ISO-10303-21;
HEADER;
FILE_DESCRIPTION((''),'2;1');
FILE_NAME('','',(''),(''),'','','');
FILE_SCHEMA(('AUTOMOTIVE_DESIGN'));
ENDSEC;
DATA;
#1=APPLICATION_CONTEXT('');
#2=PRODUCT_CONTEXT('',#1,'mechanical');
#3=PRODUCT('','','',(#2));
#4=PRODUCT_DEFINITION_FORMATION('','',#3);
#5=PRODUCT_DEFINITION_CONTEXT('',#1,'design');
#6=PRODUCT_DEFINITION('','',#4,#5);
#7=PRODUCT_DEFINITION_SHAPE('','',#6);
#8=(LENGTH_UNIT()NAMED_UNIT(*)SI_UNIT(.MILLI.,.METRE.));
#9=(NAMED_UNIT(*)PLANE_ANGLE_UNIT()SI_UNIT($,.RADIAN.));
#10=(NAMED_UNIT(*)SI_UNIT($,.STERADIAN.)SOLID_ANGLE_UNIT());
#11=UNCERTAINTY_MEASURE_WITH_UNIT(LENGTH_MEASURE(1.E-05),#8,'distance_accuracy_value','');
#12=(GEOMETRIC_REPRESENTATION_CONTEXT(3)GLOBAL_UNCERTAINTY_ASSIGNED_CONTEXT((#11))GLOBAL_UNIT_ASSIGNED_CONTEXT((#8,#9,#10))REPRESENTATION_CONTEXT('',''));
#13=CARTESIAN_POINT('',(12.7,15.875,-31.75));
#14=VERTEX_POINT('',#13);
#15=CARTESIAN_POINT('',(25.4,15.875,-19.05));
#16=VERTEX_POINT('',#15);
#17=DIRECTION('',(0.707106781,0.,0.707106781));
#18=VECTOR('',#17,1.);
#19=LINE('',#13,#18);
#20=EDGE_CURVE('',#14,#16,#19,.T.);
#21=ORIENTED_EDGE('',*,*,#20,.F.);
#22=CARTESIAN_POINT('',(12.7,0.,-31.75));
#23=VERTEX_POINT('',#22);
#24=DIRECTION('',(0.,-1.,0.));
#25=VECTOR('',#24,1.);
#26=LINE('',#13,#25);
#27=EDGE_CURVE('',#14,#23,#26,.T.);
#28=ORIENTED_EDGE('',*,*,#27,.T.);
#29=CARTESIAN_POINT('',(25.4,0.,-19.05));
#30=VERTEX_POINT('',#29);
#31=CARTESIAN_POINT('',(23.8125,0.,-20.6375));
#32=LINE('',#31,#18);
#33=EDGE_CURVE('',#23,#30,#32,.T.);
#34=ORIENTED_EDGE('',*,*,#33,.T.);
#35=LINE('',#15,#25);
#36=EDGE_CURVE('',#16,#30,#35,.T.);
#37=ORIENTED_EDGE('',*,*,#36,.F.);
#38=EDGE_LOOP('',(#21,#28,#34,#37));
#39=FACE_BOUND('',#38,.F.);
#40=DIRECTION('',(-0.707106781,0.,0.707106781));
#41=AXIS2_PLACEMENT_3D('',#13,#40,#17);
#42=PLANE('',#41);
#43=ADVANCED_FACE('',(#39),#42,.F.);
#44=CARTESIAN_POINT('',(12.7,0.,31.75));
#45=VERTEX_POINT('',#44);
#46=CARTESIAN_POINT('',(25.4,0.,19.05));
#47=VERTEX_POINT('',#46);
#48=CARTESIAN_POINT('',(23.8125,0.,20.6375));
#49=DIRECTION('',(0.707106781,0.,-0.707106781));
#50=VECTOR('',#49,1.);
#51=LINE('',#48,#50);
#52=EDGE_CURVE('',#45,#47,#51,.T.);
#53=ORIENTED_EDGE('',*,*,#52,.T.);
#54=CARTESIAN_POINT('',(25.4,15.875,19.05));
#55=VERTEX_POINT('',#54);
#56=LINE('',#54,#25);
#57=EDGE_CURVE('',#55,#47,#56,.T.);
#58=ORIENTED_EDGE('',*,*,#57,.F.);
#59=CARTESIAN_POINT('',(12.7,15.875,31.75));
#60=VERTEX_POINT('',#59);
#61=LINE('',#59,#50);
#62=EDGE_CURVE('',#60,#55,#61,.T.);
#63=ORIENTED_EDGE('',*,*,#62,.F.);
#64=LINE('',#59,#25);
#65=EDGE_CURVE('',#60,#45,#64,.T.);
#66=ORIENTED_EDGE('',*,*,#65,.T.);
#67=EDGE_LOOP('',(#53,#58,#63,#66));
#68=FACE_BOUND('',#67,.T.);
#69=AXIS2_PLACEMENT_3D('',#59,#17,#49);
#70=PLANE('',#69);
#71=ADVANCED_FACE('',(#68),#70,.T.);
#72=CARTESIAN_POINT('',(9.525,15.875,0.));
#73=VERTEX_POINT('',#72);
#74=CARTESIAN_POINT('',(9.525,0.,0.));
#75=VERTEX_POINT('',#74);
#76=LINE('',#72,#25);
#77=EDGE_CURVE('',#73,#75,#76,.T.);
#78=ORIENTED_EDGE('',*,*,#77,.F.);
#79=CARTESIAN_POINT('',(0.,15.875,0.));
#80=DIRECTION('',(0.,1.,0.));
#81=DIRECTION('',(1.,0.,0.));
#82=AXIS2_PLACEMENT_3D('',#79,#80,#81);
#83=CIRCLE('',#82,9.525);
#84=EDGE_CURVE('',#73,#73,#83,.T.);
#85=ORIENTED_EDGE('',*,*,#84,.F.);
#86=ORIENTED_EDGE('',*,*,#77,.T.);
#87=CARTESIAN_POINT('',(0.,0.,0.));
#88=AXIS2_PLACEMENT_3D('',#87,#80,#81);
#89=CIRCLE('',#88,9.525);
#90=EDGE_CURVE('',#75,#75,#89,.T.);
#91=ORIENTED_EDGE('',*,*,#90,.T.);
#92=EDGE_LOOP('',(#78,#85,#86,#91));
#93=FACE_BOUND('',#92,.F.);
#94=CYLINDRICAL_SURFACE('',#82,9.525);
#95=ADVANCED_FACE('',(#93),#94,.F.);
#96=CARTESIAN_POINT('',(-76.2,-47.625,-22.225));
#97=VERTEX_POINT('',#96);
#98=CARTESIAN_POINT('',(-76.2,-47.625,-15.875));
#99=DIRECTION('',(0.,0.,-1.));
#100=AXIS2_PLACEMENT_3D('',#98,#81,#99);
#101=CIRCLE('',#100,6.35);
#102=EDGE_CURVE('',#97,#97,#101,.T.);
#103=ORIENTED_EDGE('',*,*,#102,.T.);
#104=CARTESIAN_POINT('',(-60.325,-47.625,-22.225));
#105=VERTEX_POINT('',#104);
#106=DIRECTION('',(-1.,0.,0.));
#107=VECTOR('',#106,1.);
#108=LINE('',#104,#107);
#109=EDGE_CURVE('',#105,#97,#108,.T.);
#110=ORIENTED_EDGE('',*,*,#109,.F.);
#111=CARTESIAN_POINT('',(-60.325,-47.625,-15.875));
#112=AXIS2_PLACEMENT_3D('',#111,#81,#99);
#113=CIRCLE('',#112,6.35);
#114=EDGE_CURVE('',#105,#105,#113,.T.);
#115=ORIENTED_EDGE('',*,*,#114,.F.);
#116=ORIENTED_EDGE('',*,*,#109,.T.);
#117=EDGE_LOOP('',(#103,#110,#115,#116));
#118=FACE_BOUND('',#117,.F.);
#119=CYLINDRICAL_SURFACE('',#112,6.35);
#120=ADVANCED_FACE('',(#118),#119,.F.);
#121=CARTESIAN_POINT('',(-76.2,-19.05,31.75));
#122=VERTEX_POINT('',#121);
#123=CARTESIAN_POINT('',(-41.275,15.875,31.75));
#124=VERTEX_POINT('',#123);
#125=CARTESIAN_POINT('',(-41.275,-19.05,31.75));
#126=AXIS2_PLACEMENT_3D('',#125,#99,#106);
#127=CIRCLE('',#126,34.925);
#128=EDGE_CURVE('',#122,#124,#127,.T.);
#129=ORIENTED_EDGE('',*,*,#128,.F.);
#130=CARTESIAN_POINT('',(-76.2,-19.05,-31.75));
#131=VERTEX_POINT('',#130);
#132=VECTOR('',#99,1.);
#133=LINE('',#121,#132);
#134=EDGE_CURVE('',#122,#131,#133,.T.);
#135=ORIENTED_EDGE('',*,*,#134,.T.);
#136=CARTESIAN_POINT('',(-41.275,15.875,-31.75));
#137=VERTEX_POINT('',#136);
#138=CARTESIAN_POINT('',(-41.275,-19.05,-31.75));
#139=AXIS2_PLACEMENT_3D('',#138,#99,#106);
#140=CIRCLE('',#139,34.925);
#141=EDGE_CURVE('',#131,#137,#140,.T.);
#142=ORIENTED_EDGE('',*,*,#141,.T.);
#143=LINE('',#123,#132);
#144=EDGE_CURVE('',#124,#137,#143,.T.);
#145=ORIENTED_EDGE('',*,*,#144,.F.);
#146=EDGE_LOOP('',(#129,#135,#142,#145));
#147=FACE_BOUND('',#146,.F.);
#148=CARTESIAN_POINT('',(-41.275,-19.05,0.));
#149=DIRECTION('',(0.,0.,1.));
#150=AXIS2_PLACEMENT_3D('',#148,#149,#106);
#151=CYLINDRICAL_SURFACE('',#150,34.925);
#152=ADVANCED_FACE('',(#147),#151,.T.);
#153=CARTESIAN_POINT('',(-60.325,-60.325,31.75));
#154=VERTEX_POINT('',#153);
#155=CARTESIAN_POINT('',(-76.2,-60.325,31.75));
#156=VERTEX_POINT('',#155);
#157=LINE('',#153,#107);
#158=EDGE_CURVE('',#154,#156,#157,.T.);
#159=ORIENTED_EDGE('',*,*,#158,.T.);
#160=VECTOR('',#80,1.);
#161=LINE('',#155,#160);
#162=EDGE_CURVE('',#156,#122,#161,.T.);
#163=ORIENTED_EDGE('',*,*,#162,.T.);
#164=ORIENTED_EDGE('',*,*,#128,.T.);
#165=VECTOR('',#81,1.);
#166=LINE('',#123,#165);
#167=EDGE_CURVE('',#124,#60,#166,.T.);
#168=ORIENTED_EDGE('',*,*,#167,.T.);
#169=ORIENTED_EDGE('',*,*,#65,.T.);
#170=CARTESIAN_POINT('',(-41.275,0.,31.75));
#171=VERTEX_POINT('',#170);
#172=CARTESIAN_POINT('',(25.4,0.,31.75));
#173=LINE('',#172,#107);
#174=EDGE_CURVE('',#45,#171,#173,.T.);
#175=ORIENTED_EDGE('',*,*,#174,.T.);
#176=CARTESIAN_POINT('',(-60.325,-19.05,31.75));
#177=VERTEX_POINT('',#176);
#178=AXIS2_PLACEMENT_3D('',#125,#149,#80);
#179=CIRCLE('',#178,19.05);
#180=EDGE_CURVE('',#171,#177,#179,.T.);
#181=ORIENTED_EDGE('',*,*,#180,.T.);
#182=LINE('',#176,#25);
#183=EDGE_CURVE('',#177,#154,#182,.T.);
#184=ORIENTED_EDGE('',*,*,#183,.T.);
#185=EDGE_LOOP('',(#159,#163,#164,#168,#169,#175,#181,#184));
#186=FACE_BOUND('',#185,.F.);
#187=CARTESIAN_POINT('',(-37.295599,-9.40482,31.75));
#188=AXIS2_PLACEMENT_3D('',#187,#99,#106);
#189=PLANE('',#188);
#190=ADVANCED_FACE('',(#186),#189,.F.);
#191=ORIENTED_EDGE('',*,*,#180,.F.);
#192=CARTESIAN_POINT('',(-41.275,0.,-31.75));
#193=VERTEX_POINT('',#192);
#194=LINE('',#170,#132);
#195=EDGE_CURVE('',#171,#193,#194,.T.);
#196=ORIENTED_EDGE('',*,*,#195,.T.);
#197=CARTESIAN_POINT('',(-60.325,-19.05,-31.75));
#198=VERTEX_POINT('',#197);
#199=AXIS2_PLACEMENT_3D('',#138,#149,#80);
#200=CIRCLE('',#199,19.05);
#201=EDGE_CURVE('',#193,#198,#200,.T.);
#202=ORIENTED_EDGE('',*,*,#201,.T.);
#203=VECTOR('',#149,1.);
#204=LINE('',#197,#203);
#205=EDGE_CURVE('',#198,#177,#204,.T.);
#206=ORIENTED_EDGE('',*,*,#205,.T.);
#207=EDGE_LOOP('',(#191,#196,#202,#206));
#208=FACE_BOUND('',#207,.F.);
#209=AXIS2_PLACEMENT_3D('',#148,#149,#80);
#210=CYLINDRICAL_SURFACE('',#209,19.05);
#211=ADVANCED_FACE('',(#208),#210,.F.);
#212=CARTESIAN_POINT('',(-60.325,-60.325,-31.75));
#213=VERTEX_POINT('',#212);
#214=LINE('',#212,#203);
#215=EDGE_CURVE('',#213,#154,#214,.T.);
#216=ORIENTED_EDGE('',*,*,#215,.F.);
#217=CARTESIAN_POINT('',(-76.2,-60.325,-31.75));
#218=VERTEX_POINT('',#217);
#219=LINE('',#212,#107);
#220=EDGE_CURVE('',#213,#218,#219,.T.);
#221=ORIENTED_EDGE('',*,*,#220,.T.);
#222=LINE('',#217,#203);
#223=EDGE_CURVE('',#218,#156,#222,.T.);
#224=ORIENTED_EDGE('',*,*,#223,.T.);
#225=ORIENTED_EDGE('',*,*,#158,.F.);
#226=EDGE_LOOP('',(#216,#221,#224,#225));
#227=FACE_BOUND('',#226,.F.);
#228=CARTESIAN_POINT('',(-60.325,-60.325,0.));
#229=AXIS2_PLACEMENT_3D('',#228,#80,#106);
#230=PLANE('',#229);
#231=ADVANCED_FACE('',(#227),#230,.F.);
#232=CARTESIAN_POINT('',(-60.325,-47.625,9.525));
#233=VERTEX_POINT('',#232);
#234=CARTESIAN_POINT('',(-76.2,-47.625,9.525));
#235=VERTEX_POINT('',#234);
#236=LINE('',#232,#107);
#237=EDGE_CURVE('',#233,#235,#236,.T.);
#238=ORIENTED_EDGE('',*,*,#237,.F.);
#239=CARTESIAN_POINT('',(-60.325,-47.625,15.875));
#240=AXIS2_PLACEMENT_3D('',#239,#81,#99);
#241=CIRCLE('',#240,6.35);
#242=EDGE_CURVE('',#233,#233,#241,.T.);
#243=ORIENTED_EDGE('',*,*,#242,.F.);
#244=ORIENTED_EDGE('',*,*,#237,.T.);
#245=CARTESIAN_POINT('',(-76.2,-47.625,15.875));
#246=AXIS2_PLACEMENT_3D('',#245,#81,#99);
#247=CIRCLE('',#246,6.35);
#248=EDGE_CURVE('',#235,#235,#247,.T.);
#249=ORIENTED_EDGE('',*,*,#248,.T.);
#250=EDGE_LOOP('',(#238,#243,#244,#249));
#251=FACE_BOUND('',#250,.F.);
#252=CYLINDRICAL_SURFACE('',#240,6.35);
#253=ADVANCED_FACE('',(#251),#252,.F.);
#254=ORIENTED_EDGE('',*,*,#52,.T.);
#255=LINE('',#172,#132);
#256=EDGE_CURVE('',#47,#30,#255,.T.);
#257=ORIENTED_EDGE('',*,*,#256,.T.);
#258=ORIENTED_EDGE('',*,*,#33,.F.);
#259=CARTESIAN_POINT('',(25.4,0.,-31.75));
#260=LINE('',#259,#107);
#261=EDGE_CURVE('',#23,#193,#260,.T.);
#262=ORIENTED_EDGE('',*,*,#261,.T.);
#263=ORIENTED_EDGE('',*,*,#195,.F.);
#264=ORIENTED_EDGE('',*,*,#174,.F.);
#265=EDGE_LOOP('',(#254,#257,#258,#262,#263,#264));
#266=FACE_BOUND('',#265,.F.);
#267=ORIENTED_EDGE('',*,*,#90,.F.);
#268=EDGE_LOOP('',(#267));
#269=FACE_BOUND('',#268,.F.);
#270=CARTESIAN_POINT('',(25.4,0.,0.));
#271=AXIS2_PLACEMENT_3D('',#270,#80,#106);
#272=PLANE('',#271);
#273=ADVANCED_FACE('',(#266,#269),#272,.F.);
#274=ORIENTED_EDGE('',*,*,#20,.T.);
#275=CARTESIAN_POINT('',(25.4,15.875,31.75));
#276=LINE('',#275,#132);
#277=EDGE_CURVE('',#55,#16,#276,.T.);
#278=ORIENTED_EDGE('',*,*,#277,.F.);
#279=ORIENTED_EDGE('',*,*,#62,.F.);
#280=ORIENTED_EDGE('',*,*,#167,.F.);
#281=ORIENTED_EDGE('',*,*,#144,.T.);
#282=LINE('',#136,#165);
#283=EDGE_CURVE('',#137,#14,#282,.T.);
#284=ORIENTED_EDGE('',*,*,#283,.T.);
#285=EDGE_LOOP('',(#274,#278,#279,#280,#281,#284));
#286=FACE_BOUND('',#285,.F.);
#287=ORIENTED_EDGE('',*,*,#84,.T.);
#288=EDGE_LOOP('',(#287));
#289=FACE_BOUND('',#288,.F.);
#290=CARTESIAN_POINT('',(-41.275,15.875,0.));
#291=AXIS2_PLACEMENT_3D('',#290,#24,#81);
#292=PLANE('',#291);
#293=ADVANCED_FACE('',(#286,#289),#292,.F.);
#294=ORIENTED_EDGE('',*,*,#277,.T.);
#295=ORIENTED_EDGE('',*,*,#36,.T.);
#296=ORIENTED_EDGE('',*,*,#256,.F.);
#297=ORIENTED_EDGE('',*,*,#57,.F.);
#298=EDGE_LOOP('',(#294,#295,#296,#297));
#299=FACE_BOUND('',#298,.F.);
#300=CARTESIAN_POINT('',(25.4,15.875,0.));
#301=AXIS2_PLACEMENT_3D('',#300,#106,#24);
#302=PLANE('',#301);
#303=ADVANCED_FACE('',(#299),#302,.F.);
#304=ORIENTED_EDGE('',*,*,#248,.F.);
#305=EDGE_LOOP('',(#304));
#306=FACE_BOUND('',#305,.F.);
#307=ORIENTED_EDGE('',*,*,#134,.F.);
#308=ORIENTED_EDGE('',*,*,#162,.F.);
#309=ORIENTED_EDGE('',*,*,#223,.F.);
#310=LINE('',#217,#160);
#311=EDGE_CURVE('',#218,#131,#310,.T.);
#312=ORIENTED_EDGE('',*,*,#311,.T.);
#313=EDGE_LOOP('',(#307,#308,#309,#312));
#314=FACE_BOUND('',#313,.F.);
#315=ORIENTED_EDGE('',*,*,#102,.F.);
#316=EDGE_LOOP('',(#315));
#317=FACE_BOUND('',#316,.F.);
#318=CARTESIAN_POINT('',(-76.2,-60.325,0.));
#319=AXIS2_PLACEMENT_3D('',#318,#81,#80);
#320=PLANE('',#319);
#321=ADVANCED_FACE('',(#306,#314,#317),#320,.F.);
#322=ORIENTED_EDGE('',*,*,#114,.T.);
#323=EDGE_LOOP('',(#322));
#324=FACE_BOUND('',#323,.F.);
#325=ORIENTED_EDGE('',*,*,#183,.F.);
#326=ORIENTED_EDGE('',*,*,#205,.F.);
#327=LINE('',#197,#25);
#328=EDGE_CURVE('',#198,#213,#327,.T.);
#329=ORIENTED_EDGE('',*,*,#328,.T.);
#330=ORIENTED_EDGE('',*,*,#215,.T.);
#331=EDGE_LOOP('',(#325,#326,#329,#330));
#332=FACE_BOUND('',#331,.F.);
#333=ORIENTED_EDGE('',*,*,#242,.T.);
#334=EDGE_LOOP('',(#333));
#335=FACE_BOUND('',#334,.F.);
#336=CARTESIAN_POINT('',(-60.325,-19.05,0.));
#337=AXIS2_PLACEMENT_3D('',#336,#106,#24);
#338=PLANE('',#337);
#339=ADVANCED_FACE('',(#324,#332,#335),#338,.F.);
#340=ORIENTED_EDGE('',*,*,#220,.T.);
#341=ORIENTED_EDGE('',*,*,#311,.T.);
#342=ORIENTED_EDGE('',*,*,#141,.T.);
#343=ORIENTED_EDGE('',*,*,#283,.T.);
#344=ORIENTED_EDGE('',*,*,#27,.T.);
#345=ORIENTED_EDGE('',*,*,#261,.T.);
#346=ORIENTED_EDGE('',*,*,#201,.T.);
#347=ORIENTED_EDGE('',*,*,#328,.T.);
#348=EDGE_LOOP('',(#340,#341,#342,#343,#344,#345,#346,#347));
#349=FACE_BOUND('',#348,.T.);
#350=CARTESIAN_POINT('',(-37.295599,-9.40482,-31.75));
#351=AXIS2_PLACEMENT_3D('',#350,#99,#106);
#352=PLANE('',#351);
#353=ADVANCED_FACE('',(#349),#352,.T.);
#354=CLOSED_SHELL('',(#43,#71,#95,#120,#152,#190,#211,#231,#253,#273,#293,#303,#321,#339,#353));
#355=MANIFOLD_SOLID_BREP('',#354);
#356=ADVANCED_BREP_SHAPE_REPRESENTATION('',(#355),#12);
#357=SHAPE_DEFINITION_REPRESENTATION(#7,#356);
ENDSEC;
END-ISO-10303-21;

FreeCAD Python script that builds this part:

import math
import FreeCAD as App
import Part
import Sketcher
Q = App.Units.Quantity


def add_polygon(sketch, points):
    """Adds a closed chain of lines whose ends are joined by coincident constraints."""
    first, n = sketch.GeometryCount, len(points)
    for a, b in zip(points, points[1:] + points[:1]):
        sketch.addGeometry(Part.LineSegment(App.Vector(*a, 0), App.Vector(*b, 0)), False)
    for i in range(n):
        sketch.addConstraint(Sketcher.Constraint("Coincident", first + i, 2, first + (i + 1) % n, 1))

doc = App.newDocument("Part")
body = doc.addObject("PartDesign::Body", "Body")

sketch1 = body.newObject("Sketcher::SketchObject", "Sketch")
sketch1.AttachmentSupport = (doc.getObject("XY_Plane"), [""])
sketch1.MapMode = "FlatFace"
sketch1.addGeometry([
    Part.LineSegment(App.Vector(-76, -19, 0), App.Vector(-76, -60, 0)),
    Part.LineSegment(App.Vector(-76, -60, 0), App.Vector(-60, -60, 0)),
    Part.LineSegment(App.Vector(-60, -60, 0), App.Vector(-60, -19, 0)),
    Part.ArcOfCircle(Part.Circle(App.Vector(-41, -19, 0), App.Vector(0, 0, 1), 19), math.radians(90), math.radians(180)),
    Part.LineSegment(App.Vector(-41, 0, 0), App.Vector(25, 0, 0)),
    Part.LineSegment(App.Vector(25, 0, 0), App.Vector(25, 16, 0)),
    Part.LineSegment(App.Vector(25, 16, 0), App.Vector(-41, 16, 0)),
    Part.ArcOfCircle(Part.Circle(App.Vector(-41, -19, 0), App.Vector(0, 0, 1), 35), math.radians(90), math.radians(180)),
], False)
sketch1.addConstraint([
    Sketcher.Constraint("Coincident", 0, 2, 1, 1),
    Sketcher.Constraint("Coincident", 1, 2, 2, 1),
    Sketcher.Constraint("Tangent", 2, 2, 3, 2),
    Sketcher.Constraint("Tangent", 3, 1, 4, 1),
    Sketcher.Constraint("Coincident", 4, 2, 5, 1),
    Sketcher.Constraint("Coincident", 5, 2, 6, 1),
    Sketcher.Constraint("Tangent", 6, 2, 7, 1),
    Sketcher.Constraint("Tangent", 7, 2, 0, 1),
    Sketcher.Constraint("Vertical", 0),
    Sketcher.Constraint("Horizontal", 1),
    Sketcher.Constraint("Vertical", 2),
    Sketcher.Constraint("Horizontal", 4),
    Sketcher.Constraint("Vertical", 5),
    Sketcher.Constraint("Horizontal", 6),
    Sketcher.Constraint("Coincident", 7, 3, 3, 3),
    Sketcher.Constraint("PointOnObject", 3, 1, -1),
    Sketcher.Constraint("Radius", 3, Q("0.75 in")),
    Sketcher.Constraint("DistanceX", 0, 2, -1, 1, Q("3 in")),
    Sketcher.Constraint("DistanceX", -1, 1, 4, 2, Q("1 in")),
    Sketcher.Constraint("Radius", 7, Q("1.375 in")),
    Sketcher.Constraint("DistanceY", 0, 2, 0, 1, Q("1.625 in")),
])
pad1 = body.newObject("PartDesign::Pad", "Pad")
pad1.Profile = sketch1
pad1.Length = Q("2.5 in")
pad1.Midplane = True

sketch2 = body.newObject("Sketcher::SketchObject", "Sketch001")
sketch2.AttachmentSupport = (doc.getObject("XZ_Plane"), [""])
sketch2.MapMode = "FlatFace"
sketch2.AttachmentOffset = App.Placement(App.Vector(0, 0, -0.625 * 25.4), App.Rotation())
sketch2.addGeometry(Part.Circle(App.Vector(0, 0, 0), App.Vector(0, 0, 1), 10), False)
sketch2.addConstraint([
    Sketcher.Constraint("Coincident", 0, 3, -1, 1),
    Sketcher.Constraint("Diameter", 0, Q("0.75 in")),
])
pocket1 = body.newObject("PartDesign::Pocket", "Pocket")
pocket1.Profile = sketch2
pocket1.Type = "ThroughAll"
pocket1.Reversed = True

sketch3 = body.newObject("Sketcher::SketchObject", "Sketch002")
sketch3.AttachmentSupport = (doc.getObject("XZ_Plane"), [""])
sketch3.MapMode = "FlatFace"
sketch3.AttachmentOffset = App.Placement(App.Vector(0, 0, -0.625 * 25.4), App.Rotation())
add_polygon(sketch3, [(13, -32), (25, -19), (25, -32)])
add_polygon(sketch3, [(25, 19), (13, 32), (25, 32)])
sketch3.addConstraint([
    Sketcher.Constraint("Vertical", 1),
    Sketcher.Constraint("Horizontal", 2),
    Sketcher.Constraint("Horizontal", 4),
    Sketcher.Constraint("Vertical", 5),
    Sketcher.Constraint("Symmetric", 2, 2, 3, 2, -1),
    Sketcher.Constraint("Symmetric", 0, 2, 5, 2, -1),
    Sketcher.Constraint("Perpendicular", 0, 3),
    Sketcher.Constraint("DistanceX", 2, 2, 2, 1, Q("0.5 in")),
    Sketcher.Constraint("DistanceX", -1, 1, 0, 2, Q("1 in")),
    Sketcher.Constraint("DistanceY", 0, 2, 3, 2, Q("2 in")),
])
pocket2 = body.newObject("PartDesign::Pocket", "Pocket001")
pocket2.Profile = sketch3
pocket2.Type = "ThroughAll"
pocket2.Reversed = True

sketch4 = body.newObject("Sketcher::SketchObject", "Sketch003")
sketch4.AttachmentSupport = (doc.getObject("YZ_Plane"), [""])
sketch4.MapMode = "FlatFace"
sketch4.AttachmentOffset = App.Placement(App.Vector(0, 0, -2.375 * 25.4), App.Rotation())
sketch4.addGeometry(Part.Circle(App.Vector(-48, 16, 0), App.Vector(0, 0, 1), 6), False)
sketch4.addConstraint([
    Sketcher.Constraint("Diameter", 0, Q("0.5 in")),
    Sketcher.Constraint("DistanceX", 0, 3, -1, 1, Q("1.875 in")),
    Sketcher.Constraint("DistanceY", -1, 1, 0, 3, Q("0.625 in")),
])
pocket3 = body.newObject("PartDesign::Pocket", "Pocket002")
pocket3.Profile = sketch4
pocket3.Type = "UpToFirst"

sketch5 = body.newObject("Sketcher::SketchObject", "Sketch004")
sketch5.AttachmentSupport = (doc.getObject("YZ_Plane"), [""])
sketch5.MapMode = "FlatFace"
sketch5.AttachmentOffset = App.Placement(App.Vector(0, 0, -2.375 * 25.4), App.Rotation())
sketch5.addGeometry(Part.Circle(App.Vector(-48, -16, 0), App.Vector(0, 0, 1), 6), False)
sketch5.addConstraint([
    Sketcher.Constraint("Diameter", 0, Q("0.5 in")),
    Sketcher.Constraint("DistanceX", 0, 3, -1, 1, Q("1.875 in")),
    Sketcher.Constraint("DistanceY", 0, 3, -1, 1, Q("0.625 in")),
])
pocket4 = body.newObject("PartDesign::Pocket", "Pocket003")
pocket4.Profile = sketch5
pocket4.Type = "UpToFirst"

doc.recompute()
